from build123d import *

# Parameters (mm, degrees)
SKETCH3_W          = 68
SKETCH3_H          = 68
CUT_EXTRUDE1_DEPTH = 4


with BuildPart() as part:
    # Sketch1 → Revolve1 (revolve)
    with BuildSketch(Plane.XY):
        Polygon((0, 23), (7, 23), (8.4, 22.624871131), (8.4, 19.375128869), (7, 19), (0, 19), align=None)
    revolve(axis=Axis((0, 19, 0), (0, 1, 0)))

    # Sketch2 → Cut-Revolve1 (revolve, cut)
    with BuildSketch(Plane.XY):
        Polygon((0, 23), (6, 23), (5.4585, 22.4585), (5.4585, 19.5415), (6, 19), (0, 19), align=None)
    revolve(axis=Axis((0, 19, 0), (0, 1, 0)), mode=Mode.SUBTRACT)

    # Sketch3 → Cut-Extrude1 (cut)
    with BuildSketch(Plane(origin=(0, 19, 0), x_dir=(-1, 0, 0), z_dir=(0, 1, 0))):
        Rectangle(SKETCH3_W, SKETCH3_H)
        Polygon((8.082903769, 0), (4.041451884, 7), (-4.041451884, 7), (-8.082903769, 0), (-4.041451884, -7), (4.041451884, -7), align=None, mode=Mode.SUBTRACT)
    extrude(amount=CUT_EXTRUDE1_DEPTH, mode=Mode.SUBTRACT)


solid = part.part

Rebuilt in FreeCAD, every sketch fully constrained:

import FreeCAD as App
import Part
import Sketcher
from FreeCAD import Vector
Q = App.Units.Quantity


def add_polygon(sketch, points):
    """Adds a closed chain of lines whose ends are joined by coincident constraints."""
    first, n = sketch.GeometryCount, len(points)
    for a, b in zip(points, points[1:] + points[:1]):
        sketch.addGeometry(Part.LineSegment(App.Vector(*a, 0), App.Vector(*b, 0)), False)
    for i in range(n):
        sketch.addConstraint(Sketcher.Constraint("Coincident", first + i, 2, first + (i + 1) % n, 1))

doc = App.newDocument("Part")
params = doc.addObject("Spreadsheet::Sheet", "Params")
for row, (alias, value) in enumerate([
    ("sketch1_width", "7 mm"),
    ("sketch1_height", "4 mm"),
    ("revolution_angle", "360 deg"),
    ("sketch2_width", "6 mm"),
    ("sketch2_height", "4 mm"),
    ("groove_angle", "360 deg"),
    ("sketch3_width", "68 mm"),
    ("pocket1_length", "4 mm"),
], start=1):
    params.set(f"A{row}", alias)
    params.set(f"B{row}", "=" + value)
    params.setAlias(f"B{row}", alias)

body = doc.addObject("PartDesign::Body", "Body")

# Sketch on XY plane
sketch1 = body.newObject("Sketcher::SketchObject", "Sketch")
sketch1.AttachmentSupport = (doc.getObject("XY_Plane"), [""])
sketch1.MapMode = "FlatFace"
add_polygon(sketch1, [(7, 23), (0, 23), (0, 19), (7, 19), (8.4, 19.375129), (8.4, 22.624871)])  # lines 0-5
sketch1.addConstraint(Sketcher.Constraint("Horizontal", 0))
sketch1.addConstraint(Sketcher.Constraint("Vertical", 1))
sketch1.addConstraint(Sketcher.Constraint("Horizontal", 2))
sketch1.addConstraint(Sketcher.Constraint("Vertical", 4))
sketch1.addConstraint(Sketcher.Constraint("PointOnObject", 0, 2, -2))
sketch1.addConstraint(Sketcher.Constraint("Vertical", 2, 2, 5, 2))
sketch1.addConstraint(Sketcher.Constraint("Equal", 3, 5))
sketch1.addConstraint(Sketcher.Constraint("DistanceX", 0, 2, 0, 1, 7.0))
sketch1.addConstraint(Sketcher.Constraint("DistanceY", 1, 2, 1, 1, 4.0))
sketch1.addConstraint(Sketcher.Constraint("Angle", 3, Q("15 deg")))
sketch1.addConstraint(Sketcher.Constraint("DistanceY", -1, 1, 0, 2, 23.0))
sketch1.addConstraint(Sketcher.Constraint("DistanceX", -1, 1, 3, 2, 8.4))
sketch1.setExpression("Constraints[13]", "Params.sketch1_width")
sketch1.setExpression("Constraints[14]", "Params.sketch1_height")
revolution = body.newObject("PartDesign::Revolution", "Revolution")
revolution.Profile = sketch1
revolution.ReferenceAxis = (sketch1, ["V_Axis"])
revolution.setExpression("Angle", "Params.revolution_angle")

# Sketch on XY plane
sketch2 = body.newObject("Sketcher::SketchObject", "Sketch001")
sketch2.AttachmentSupport = (doc.getObject("XY_Plane"), [""])
sketch2.MapMode = "FlatFace"
add_polygon(sketch2, [(6, 23), (0, 23), (0, 19), (6, 19), (5.4585, 19.5415), (5.4585, 22.4585)])  # lines 0-5
sketch2.addConstraint(Sketcher.Constraint("Horizontal", 0))
sketch2.addConstraint(Sketcher.Constraint("Vertical", 1))
sketch2.addConstraint(Sketcher.Constraint("Horizontal", 2))
sketch2.addConstraint(Sketcher.Constraint("Vertical", 4))
sketch2.addConstraint(Sketcher.Constraint("PointOnObject", 0, 2, -2))
sketch2.addConstraint(Sketcher.Constraint("Perpendicular", 3, 5))
sketch2.addConstraint(Sketcher.Constraint("Vertical", 2, 2, 5, 2))
sketch2.addConstraint(Sketcher.Constraint("Equal", 3, 5))
sketch2.addConstraint(Sketcher.Constraint("DistanceX", 0, 2, 0, 1, 6.0))
sketch2.addConstraint(Sketcher.Constraint("DistanceY", 1, 2, 1, 1, 4.0))
sketch2.addConstraint(Sketcher.Constraint("DistanceY", -1, 1, 0, 2, 23.0))
sketch2.addConstraint(Sketcher.Constraint("DistanceY", 4, 1, 4, 2, 2.917))
sketch2.setExpression("Constraints[14]", "Params.sketch2_width")
sketch2.setExpression("Constraints[15]", "Params.sketch2_height")
groove = body.newObject("PartDesign::Groove", "Groove")
groove.Profile = sketch2
groove.ReferenceAxis = (sketch2, ["V_Axis"])
groove.setExpression("Angle", "Params.groove_angle")

# Sketch on XZ plane
sketch3 = body.newObject("Sketcher::SketchObject", "Sketch002")
sketch3.AttachmentSupport = (doc.getObject("XZ_Plane"), [""])
sketch3.MapMode = "FlatFace"
sketch3.AttachmentOffset = App.Placement(Vector(0, 0, -19), App.Rotation())
add_polygon(sketch3, [(34, 34), (34, -34), (-34, -34), (-34, 34)])  # lines 0-3
add_polygon(sketch3, [(-4.041452, 7), (-8.082904, 0), (-4.041452, -7), (4.041452, -7), (8.082904, 0), (4.041452, 7)])  # lines 4-9
sketch3.addConstraint(Sketcher.Constraint("Vertical", 0))
sketch3.addConstraint(Sketcher.Constraint("Horizontal", 1))
sketch3.addConstraint(Sketcher.Constraint("Vertical", 2))
sketch3.addConstraint(Sketcher.Constraint("Horizontal", 3))
sketch3.addConstraint(Sketcher.Constraint("Horizontal", 6))
sketch3.addConstraint(Sketcher.Constraint("Horizontal", 9))
sketch3.addConstraint(Sketcher.Constraint("Symmetric", 0, 2, 2, 2, -1, 1))
sketch3.addConstraint(Sketcher.Constraint("Symmetric", 4, 2, 7, 2, -1, 1))
sketch3.addConstraint(Sketcher.Constraint("Symmetric", 5, 2, 8, 2, -1, 1))
sketch3.addConstraint(Sketcher.Constraint("PointOnObject", 4, 2, -1))
sketch3.addConstraint(Sketcher.Constraint("Parallel", 4, 7))
sketch3.addConstraint(Sketcher.Constraint("Vertical", 6, 2, 8, 2))
sketch3.addConstraint(Sketcher.Constraint("Equal", 3, 0))
sketch3.addConstraint(Sketcher.Constraint("DistanceX", 1, 2, 1, 1, 68.0))
sketch3.addConstraint(Sketcher.Constraint("Angle", 4, Q("-120 deg")))
sketch3.addConstraint(Sketcher.Constraint("DistanceY", 5, 2, -1, 1, 7.0))
sketch3.addConstraint(Sketcher.Constraint("DistanceX", 6, 1, 6, 2, 8.082904))
sketch3.setExpression("Constraints[23]", "Params.sketch3_width")
pocket1 = body.newObject("PartDesign::Pocket", "Pocket")
pocket1.Profile = sketch3
pocket1.setExpression("Length", "Params.pocket1_length")

doc.recompute()
